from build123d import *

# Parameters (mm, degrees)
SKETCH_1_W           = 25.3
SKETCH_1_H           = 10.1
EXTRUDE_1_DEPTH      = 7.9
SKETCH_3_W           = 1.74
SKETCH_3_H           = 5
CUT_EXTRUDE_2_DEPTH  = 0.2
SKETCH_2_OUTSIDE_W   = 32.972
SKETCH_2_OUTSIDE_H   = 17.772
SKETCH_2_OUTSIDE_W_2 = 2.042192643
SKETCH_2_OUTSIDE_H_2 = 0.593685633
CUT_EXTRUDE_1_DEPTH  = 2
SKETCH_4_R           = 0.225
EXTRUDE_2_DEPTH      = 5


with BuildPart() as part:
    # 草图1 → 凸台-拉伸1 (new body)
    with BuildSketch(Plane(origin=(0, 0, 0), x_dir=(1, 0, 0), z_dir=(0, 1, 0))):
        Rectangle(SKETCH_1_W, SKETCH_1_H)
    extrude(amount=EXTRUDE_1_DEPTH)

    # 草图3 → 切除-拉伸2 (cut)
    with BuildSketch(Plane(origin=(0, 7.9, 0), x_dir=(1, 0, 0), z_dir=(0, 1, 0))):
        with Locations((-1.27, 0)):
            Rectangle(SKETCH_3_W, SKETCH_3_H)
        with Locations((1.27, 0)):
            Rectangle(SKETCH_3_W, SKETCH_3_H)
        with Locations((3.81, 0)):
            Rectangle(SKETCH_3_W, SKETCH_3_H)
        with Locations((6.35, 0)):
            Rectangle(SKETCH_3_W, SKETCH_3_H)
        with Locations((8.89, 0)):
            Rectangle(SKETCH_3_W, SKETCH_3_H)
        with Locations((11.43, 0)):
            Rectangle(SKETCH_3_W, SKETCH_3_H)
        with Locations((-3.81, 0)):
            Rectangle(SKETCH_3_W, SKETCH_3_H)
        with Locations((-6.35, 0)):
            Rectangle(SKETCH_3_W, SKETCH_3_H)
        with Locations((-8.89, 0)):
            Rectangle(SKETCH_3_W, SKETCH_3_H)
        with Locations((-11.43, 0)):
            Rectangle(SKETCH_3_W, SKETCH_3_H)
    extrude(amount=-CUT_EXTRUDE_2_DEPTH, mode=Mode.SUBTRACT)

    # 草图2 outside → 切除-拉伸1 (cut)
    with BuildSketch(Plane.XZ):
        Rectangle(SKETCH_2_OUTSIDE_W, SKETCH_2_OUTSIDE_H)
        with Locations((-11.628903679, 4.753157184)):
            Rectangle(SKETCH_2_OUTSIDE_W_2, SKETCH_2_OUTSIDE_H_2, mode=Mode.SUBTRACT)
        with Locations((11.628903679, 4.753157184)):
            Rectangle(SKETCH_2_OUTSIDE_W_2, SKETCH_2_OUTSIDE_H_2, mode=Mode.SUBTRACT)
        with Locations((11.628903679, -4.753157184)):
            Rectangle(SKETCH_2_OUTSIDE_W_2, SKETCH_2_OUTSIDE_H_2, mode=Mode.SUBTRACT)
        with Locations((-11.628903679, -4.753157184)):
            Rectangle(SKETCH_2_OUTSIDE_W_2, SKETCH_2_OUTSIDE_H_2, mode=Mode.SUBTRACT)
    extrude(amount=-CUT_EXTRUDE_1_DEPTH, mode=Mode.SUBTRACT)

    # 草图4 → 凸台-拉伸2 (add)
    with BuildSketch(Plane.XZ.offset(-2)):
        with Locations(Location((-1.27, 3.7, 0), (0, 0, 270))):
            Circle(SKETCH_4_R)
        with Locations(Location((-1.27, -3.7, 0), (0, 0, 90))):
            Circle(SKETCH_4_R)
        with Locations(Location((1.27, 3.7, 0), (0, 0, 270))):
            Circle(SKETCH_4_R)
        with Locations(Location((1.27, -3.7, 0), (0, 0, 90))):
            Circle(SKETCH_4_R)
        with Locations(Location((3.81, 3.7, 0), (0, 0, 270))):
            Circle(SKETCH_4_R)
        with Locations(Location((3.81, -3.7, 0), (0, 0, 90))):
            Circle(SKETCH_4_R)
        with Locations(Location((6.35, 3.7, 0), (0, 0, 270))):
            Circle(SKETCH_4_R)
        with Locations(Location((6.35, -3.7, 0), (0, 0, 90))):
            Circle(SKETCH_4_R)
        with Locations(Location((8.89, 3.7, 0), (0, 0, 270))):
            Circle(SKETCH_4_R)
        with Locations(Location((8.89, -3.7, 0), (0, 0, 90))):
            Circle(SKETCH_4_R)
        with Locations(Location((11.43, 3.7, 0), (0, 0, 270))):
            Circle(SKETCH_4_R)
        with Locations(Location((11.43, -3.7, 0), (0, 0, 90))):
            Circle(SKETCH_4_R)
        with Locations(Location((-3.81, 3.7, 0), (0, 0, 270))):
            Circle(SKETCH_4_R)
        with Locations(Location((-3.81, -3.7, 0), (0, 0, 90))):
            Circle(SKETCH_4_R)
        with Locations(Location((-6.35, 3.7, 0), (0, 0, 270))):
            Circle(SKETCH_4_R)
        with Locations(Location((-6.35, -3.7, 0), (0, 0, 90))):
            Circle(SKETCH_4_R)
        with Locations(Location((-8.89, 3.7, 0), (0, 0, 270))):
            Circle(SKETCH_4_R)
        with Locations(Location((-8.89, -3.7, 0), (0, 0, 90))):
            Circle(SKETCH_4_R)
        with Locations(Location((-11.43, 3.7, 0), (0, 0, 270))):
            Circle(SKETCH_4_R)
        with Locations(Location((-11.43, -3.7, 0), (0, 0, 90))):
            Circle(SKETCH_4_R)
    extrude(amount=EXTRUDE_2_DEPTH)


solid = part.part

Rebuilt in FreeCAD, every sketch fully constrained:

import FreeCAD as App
import Part
import Sketcher


def add_polygon(sketch, points):
    """Adds a closed chain of lines whose ends are joined by coincident constraints."""
    first, n = sketch.GeometryCount, len(points)
    for a, b in zip(points, points[1:] + points[:1]):
        sketch.addGeometry(Part.LineSegment(App.Vector(*a, 0), App.Vector(*b, 0)), False)
    for i in range(n):
        sketch.addConstraint(Sketcher.Constraint("Coincident", first + i, 2, first + (i + 1) % n, 1))

doc = App.newDocument("Part")
body = doc.addObject("PartDesign::Body", "Body")

sketch1 = body.newObject("Sketcher::SketchObject", "Sketch")
sketch1.AttachmentSupport = (doc.getObject("XZ_Plane"), [""])
sketch1.MapMode = "FlatFace"
add_polygon(sketch1, [(-12.65, -5.05), (-12.65, 5.05), (12.65, 5.05), (12.65, -5.05)])
sketch1.addConstraint([
    Sketcher.Constraint("Vertical", 0),
    Sketcher.Constraint("Horizontal", 1),
    Sketcher.Constraint("Vertical", 2),
    Sketcher.Constraint("Horizontal", 3),
    Sketcher.Constraint("Symmetric", 0, 2, 2, 2, -1, 1),
    Sketcher.Constraint("DistanceX", 1, 1, 1, 2, 25.3),
    Sketcher.Constraint("DistanceY", 0, 1, 0, 2, 10.1),
])
pad1 = body.newObject("PartDesign::Pad", "Pad")
pad1.Profile = sketch1
pad1.Length = 7.9
pad1.Reversed = True

sketch2 = body.newObject("Sketcher::SketchObject", "Sketch001")
sketch2.AttachmentSupport = (doc.getObject("XZ_Plane"), [""])
sketch2.MapMode = "FlatFace"
sketch2.AttachmentOffset = App.Placement(App.Vector(0, 0, -7.9), App.Rotation())
add_polygon(sketch2, [(-2.14, -2.5), (-2.14, 2.5), (-0.4, 2.5), (-0.4, -2.5)])
add_polygon(sketch2, [(0.4, -2.5), (0.4, 2.5), (2.14, 2.5), (2.14, -2.5)])
add_polygon(sketch2, [(2.94, -2.5), (2.94, 2.5), (4.68, 2.5), (4.68, -2.5)])
add_polygon(sketch2, [(5.48, -2.5), (5.48, 2.5), (7.22, 2.5), (7.22, -2.5)])
add_polygon(sketch2, [(8.02, -2.5), (8.02, 2.5), (9.76, 2.5), (9.76, -2.5)])
add_polygon(sketch2, [(10.56, -2.5), (10.56, 2.5), (12.3, 2.5), (12.3, -2.5)])
add_polygon(sketch2, [(-4.68, -2.5), (-4.68, 2.5), (-2.94, 2.5), (-2.94, -2.5)])
add_polygon(sketch2, [(-7.22, -2.5), (-7.22, 2.5), (-5.48, 2.5), (-5.48, -2.5)])
add_polygon(sketch2, [(-9.76, -2.5), (-9.76, 2.5), (-8.02, 2.5), (-8.02, -2.5)])
add_polygon(sketch2, [(-12.3, -2.5), (-12.3, 2.5), (-10.56, 2.5), (-10.56, -2.5)])
sketch2.addConstraint([
    Sketcher.Constraint("Vertical", 0),
    Sketcher.Constraint("Horizontal", 1),
    Sketcher.Constraint("Vertical", 2),
    Sketcher.Constraint("Horizontal", 3),
    Sketcher.Constraint("Vertical", 4),
    Sketcher.Constraint("Horizontal", 5),
    Sketcher.Constraint("Vertical", 6),
    Sketcher.Constraint("Horizontal", 7),
    Sketcher.Constraint("Vertical", 8),
    Sketcher.Constraint("Horizontal", 9),
    Sketcher.Constraint("Vertical", 10),
    Sketcher.Constraint("Horizontal", 11),
    Sketcher.Constraint("Vertical", 12),
    Sketcher.Constraint("Horizontal", 13),
    Sketcher.Constraint("Vertical", 14),
    Sketcher.Constraint("Horizontal", 15),
    Sketcher.Constraint("Vertical", 16),
    Sketcher.Constraint("Horizontal", 17),
    Sketcher.Constraint("Vertical", 18),
    Sketcher.Constraint("Horizontal", 19),
    Sketcher.Constraint("Vertical", 20),
    Sketcher.Constraint("Horizontal", 21),
    Sketcher.Constraint("Vertical", 22),
    Sketcher.Constraint("Horizontal", 23),
    Sketcher.Constraint("Vertical", 24),
    Sketcher.Constraint("Horizontal", 25),
    Sketcher.Constraint("Vertical", 26),
    Sketcher.Constraint("Horizontal", 27),
    Sketcher.Constraint("Vertical", 28),
    Sketcher.Constraint("Horizontal", 29),
    Sketcher.Constraint("Vertical", 30),
    Sketcher.Constraint("Horizontal", 31),
    Sketcher.Constraint("Vertical", 32),
    Sketcher.Constraint("Horizontal", 33),
    Sketcher.Constraint("Vertical", 34),
    Sketcher.Constraint("Horizontal", 35),
    Sketcher.Constraint("Vertical", 36),
    Sketcher.Constraint("Horizontal", 37),
    Sketcher.Constraint("Vertical", 38),
    Sketcher.Constraint("Horizontal", 39),
    Sketcher.Constraint("Symmetric", 2, 2, 4, 2, -1, 1),
    Sketcher.Constraint("Symmetric", 0, 2, 6, 2, -1, 1),
    Sketcher.Constraint("Symmetric", 10, 2, 24, 2, -1, 1),
    Sketcher.Constraint("Symmetric", 8, 2, 26, 2, -1, 1),
    Sketcher.Constraint("Symmetric", 14, 2, 28, 2, -1, 1),
    Sketcher.Constraint("Symmetric", 12, 2, 30, 2, -1, 1),
    Sketcher.Constraint("Symmetric", 18, 2, 32, 2, -1, 1),
    Sketcher.Constraint("Symmetric", 16, 2, 34, 2, -1, 1),
    Sketcher.Constraint("Symmetric", 22, 2, 36, 2, -1, 1),
    Sketcher.Constraint("Symmetric", 20, 2, 38, 2, -1, 1),
    Sketcher.Constraint("Horizontal", 1, 2, 4, 2),
    Sketcher.Constraint("Horizontal", 5, 2, 8, 2),
    Sketcher.Constraint("Horizontal", 7, 2, 10, 2),
    Sketcher.Constraint("Horizontal", 9, 2, 12, 2),
    Sketcher.Constraint("Horizontal", 11, 2, 14, 2),
    Sketcher.Constraint("Horizontal", 13, 2, 16, 2),
    Sketcher.Constraint("Horizontal", 15, 2, 18, 2),
    Sketcher.Constraint("Horizontal", 17, 2, 20, 2),
    Sketcher.Constraint("Horizontal", 19, 2, 22, 2),
    Sketcher.Constraint("Equal", 7, 9),
    Sketcher.Constraint("Equal", 11, 13),
    Sketcher.Constraint("Equal", 15, 17),
    Sketcher.Constraint("Equal", 19, 21),
    Sketcher.Constraint("DistanceY", 0, 1, 0, 2, 5.0),
    Sketcher.Constraint("DistanceX", 1, 1, 1, 2, 1.74),
    Sketcher.Constraint("DistanceX", 1, 2, -1, 1, 0.4),
    Sketcher.Constraint("DistanceX", -1, 1, 21, 2, 12.3),
    Sketcher.Constraint("DistanceX", 5, 2, 8, 2, 0.8),
    Sketcher.Constraint("DistanceX", 9, 2, 12, 2, 0.8),
    Sketcher.Constraint("DistanceX", 13, 2, 16, 2, 0.8),
])
pocket1 = body.newObject("PartDesign::Pocket", "Pocket")
pocket1.Profile = sketch2
pocket1.Length = 0.2
pocket1.Reversed = True

sketch3 = body.newObject("Sketcher::SketchObject", "Sketch002")
sketch3.AttachmentSupport = (doc.getObject("XZ_Plane"), [""])
sketch3.MapMode = "FlatFace"
add_polygon(sketch3, [(-16.486, 8.886), (-16.486, -8.886), (16.486, -8.886), (16.486, 8.886)])
add_polygon(sketch3, [(-10.607807, -5.05), (-12.65, -5.05), (-12.65, -4.456314), (-10.607807, -4.456314)])
add_polygon(sketch3, [(12.65, -5.05), (10.607807, -5.05), (10.607807, -4.456314), (12.65, -4.456314)])
add_polygon(sketch3, [(-10.607807, 4.456314), (-12.65, 4.456314), (-12.65, 5.05), (-10.607807, 5.05)])
add_polygon(sketch3, [(12.65, 4.456314), (10.607807, 4.456314), (10.607807, 5.05), (12.65, 5.05)])
sketch3.addConstraint([
    Sketcher.Constraint("Vertical", 0),
    Sketcher.Constraint("Horizontal", 1),
    Sketcher.Constraint("Vertical", 2),
    Sketcher.Constraint("Horizontal", 3),
    Sketcher.Constraint("Horizontal", 4),
    Sketcher.Constraint("Vertical", 5),
    Sketcher.Constraint("Horizontal", 6),
    Sketcher.Constraint("Vertical", 7),
    Sketcher.Constraint("Horizontal", 8),
    Sketcher.Constraint("Vertical", 9),
    Sketcher.Constraint("Horizontal", 10),
    Sketcher.Constraint("Vertical", 11),
    Sketcher.Constraint("Horizontal", 12),
    Sketcher.Constraint("Vertical", 13),
    Sketcher.Constraint("Horizontal", 14),
    Sketcher.Constraint("Vertical", 15),
    Sketcher.Constraint("Horizontal", 16),
    Sketcher.Constraint("Vertical", 17),
    Sketcher.Constraint("Horizontal", 18),
    Sketcher.Constraint("Vertical", 19),
    Sketcher.Constraint("Symmetric", 0, 2, 2, 2, -1, 1),
    Sketcher.Constraint("Symmetric", 10, 2, 12, 2, -1, 1),
    Sketcher.Constraint("Symmetric", 8, 2, 14, 2, -1, 1),
    Sketcher.Constraint("Symmetric", 6, 2, 16, 2, -1, 1),
    Sketcher.Constraint("Symmetric", 4, 2, 18, 2, -1, 1),
    Sketcher.Constraint("Symmetric", 7, 2, 8, 2, -2),
    Sketcher.Constraint("Symmetric", 5, 2, 10, 2, -2),
    Sketcher.Constraint("DistanceY", 4, 2, 13, 2, 10.1),
    Sketcher.Constraint("DistanceX", 1, 1, 1, 2, 32.972),
    Sketcher.Constraint("DistanceY", 0, 2, 0, 1, 17.772),
    Sketcher.Constraint("DistanceX", 4, 2, -1, 1, 12.65),
    Sketcher.Constraint("DistanceX", 4, 2, 4, 1, 2.042193),
    Sketcher.Constraint("DistanceY", 5, 1, 5, 2, 0.593686),
])
pocket2 = body.newObject("PartDesign::Pocket", "Pocket001")
pocket2.Profile = sketch3
pocket2.Length = 2

sketch4 = body.newObject("Sketcher::SketchObject", "Sketch003")
sketch4.AttachmentSupport = (doc.getObject("XZ_Plane"), [""])
sketch4.MapMode = "FlatFace"
sketch4.AttachmentOffset = App.Placement(App.Vector(0, 0, -2), App.Rotation())
sketch4.addGeometry([
    Part.Circle(App.Vector(-1.27, 3.7, 0), App.Vector(0, 0, 1), 0.225),
    Part.Circle(App.Vector(-1.27, -3.7, 0), App.Vector(0, 0, 1), 0.225),
    Part.Circle(App.Vector(1.27, 3.7, 0), App.Vector(0, 0, 1), 0.225),
    Part.Circle(App.Vector(1.27, -3.7, 0), App.Vector(0, 0, 1), 0.225),
    Part.Circle(App.Vector(3.81, 3.7, 0), App.Vector(0, 0, 1), 0.225),
    Part.Circle(App.Vector(3.81, -3.7, 0), App.Vector(0, 0, 1), 0.225),
    Part.Circle(App.Vector(6.35, 3.7, 0), App.Vector(0, 0, 1), 0.225),
    Part.Circle(App.Vector(6.35, -3.7, 0), App.Vector(0, 0, 1), 0.225),
    Part.Circle(App.Vector(8.89, 3.7, 0), App.Vector(0, 0, 1), 0.225),
    Part.Circle(App.Vector(8.89, -3.7, 0), App.Vector(0, 0, 1), 0.225),
    Part.Circle(App.Vector(11.43, 3.7, 0), App.Vector(0, 0, 1), 0.225),
    Part.Circle(App.Vector(11.43, -3.7, 0), App.Vector(0, 0, 1), 0.225),
    Part.Circle(App.Vector(-3.81, 3.7, 0), App.Vector(0, 0, 1), 0.225),
    Part.Circle(App.Vector(-3.81, -3.7, 0), App.Vector(0, 0, 1), 0.225),
    Part.Circle(App.Vector(-6.35, 3.7, 0), App.Vector(0, 0, 1), 0.225),
    Part.Circle(App.Vector(-6.35, -3.7, 0), App.Vector(0, 0, 1), 0.225),
    Part.Circle(App.Vector(-8.89, 3.7, 0), App.Vector(0, 0, 1), 0.225),
    Part.Circle(App.Vector(-8.89, -3.7, 0), App.Vector(0, 0, 1), 0.225),
    Part.Circle(App.Vector(-11.43, 3.7, 0), App.Vector(0, 0, 1), 0.225),
    Part.Circle(App.Vector(-11.43, -3.7, 0), App.Vector(0, 0, 1), 0.225),
], False)
sketch4.addConstraint([
    Sketcher.Constraint("Equal", 0, 1),
    Sketcher.Constraint("Equal", 1, 2),
    Sketcher.Constraint("Equal", 2, 3),
    Sketcher.Constraint("Equal", 3, 4),
    Sketcher.Constraint("Equal", 4, 5),
    Sketcher.Constraint("Equal", 5, 6),
    Sketcher.Constraint("Equal", 6, 7),
    Sketcher.Constraint("Equal", 7, 8),
    Sketcher.Constraint("Equal", 8, 9),
    Sketcher.Constraint("Equal", 9, 10),
    Sketcher.Constraint("Equal", 10, 11),
    Sketcher.Constraint("Equal", 11, 12),
    Sketcher.Constraint("Equal", 12, 13),
    Sketcher.Constraint("Equal", 13, 14),
    Sketcher.Constraint("Equal", 14, 15),
    Sketcher.Constraint("Equal", 15, 16),
    Sketcher.Constraint("Equal", 16, 17),
    Sketcher.Constraint("Equal", 17, 18),
    Sketcher.Constraint("Equal", 18, 19),
    Sketcher.Constraint("Symmetric", 1, 3, 2, 3, -1, 1),
    Sketcher.Constraint("Symmetric", 0, 3, 3, 3, -1, 1),
    Sketcher.Constraint("Symmetric", 5, 3, 12, 3, -1, 1),
    Sketcher.Constraint("Symmetric", 4, 3, 13, 3, -1, 1),
    Sketcher.Constraint("Symmetric", 7, 3, 14, 3, -1, 1),
    Sketcher.Constraint("Symmetric", 6, 3, 15, 3, -1, 1),
    Sketcher.Constraint("Symmetric", 9, 3, 16, 3, -1, 1),
    Sketcher.Constraint("Symmetric", 8, 3, 17, 3, -1, 1),
    Sketcher.Constraint("Symmetric", 11, 3, 18, 3, -1, 1),
    Sketcher.Constraint("Symmetric", 10, 3, 19, 3, -1, 1),
    Sketcher.Constraint("Symmetric", 0, 3, 2, 3, -2),
    Sketcher.Constraint("Symmetric", 4, 3, 12, 3, -2),
    Sketcher.Constraint("Symmetric", 6, 3, 14, 3, -2),
    Sketcher.Constraint("Symmetric", 8, 3, 16, 3, -2),
    Sketcher.Constraint("Symmetric", 10, 3, 18, 3, -2),
    Sketcher.Constraint("Horizontal", 2, 3, 4, 3),
    Sketcher.Constraint("Horizontal", 4, 3, 6, 3),
    Sketcher.Constraint("Horizontal", 6, 3, 8, 3),
    Sketcher.Constraint("Horizontal", 8, 3, 10, 3),
    Sketcher.Constraint("Diameter", 0, 0.45),
    Sketcher.Constraint("DistanceY", -1, 1, 0, 3, 3.7),
    Sketcher.Constraint("DistanceX", 0, 3, -1, 1, 1.27),
    Sketcher.Constraint("DistanceX", -1, 1, 4, 3, 3.81),
    Sketcher.Constraint("DistanceX", -1, 1, 6, 3, 6.35),
    Sketcher.Constraint("DistanceX", -1, 1, 8, 3, 8.89),
    Sketcher.Constraint("DistanceX", -1, 1, 10, 3, 11.43),
])
pad2 = body.newObject("PartDesign::Pad", "Pad001")
pad2.Profile = sketch4
pad2.Length = 5

doc.recompute()
